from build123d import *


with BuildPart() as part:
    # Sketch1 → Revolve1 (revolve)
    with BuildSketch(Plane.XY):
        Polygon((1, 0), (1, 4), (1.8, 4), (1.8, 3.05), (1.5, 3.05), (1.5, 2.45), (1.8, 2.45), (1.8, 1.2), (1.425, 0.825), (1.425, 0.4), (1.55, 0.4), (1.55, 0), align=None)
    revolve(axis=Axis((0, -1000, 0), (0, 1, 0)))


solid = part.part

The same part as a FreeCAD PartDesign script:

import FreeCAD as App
import Part
import Sketcher

V = App.Vector
Q = App.Units.Quantity


def add_polygon(sketch, points):
    """Adds a closed chain of lines whose ends are joined by coincident constraints."""
    first, n = sketch.GeometryCount, len(points)
    for a, b in zip(points, points[1:] + points[:1]):
        sketch.addGeometry(Part.LineSegment(App.Vector(*a, 0), App.Vector(*b, 0)), False)
    for i in range(n):
        sketch.addConstraint(Sketcher.Constraint("Coincident", first + i, 2, first + (i + 1) % n, 1))

doc = App.newDocument("Part")
body = doc.addObject("PartDesign::Body", "Body")

# Sketch on XY plane
sketch1 = body.newObject("Sketcher::SketchObject", "Sketch")
sketch1.AttachmentSupport = (doc.getObject("XY_Plane"), [""])
sketch1.MapMode = "FlatFace"
add_polygon(sketch1, [(1, 4), (1, 0), (1.55, 0), (1.55, 0.4), (1.43, 0.4), (1.43, 0.82), (1.8, 1.2), (1.8, 2.45), (1.5, 2.45), (1.5, 3.05), (1.8, 3.05), (1.8, 4)])  # lines 0-11
sketch1.addConstraint([
    Sketcher.Constraint("Vertical", 0),
    Sketcher.Constraint("Horizontal", 1),
    Sketcher.Constraint("Vertical", 2),
    Sketcher.Constraint("Horizontal", 3),
    Sketcher.Constraint("Vertical", 4),
    Sketcher.Constraint("Vertical", 6),
    Sketcher.Constraint("Horizontal", 7),
    Sketcher.Constraint("Vertical", 8),
    Sketcher.Constraint("Horizontal", 9),
    Sketcher.Constraint("Vertical", 10),
    Sketcher.Constraint("Horizontal", 11),
    Sketcher.Constraint("PointOnObject", 0, 2, -1),
    Sketcher.Constraint("Vertical", 6, 2, 9, 2),
    Sketcher.Constraint("DistanceY", 0, 2, 0, 1, Q("4 mm")),
    Sketcher.Constraint("Angle", 5, Q("45 deg")),
    Sketcher.Constraint("DistanceX", 7, 2, 7, 1, Q("0.3 mm")),
    Sketcher.Constraint("DistanceX", 11, 2, 11, 1, Q("0.8 mm")),
    Sketcher.Constraint("DistanceY", 2, 1, 2, 2, Q("0.4 mm")),
    Sketcher.Constraint("DistanceY", 8, 1, 8, 2, Q("0.6 mm")),
    Sketcher.Constraint("DistanceX", -1, 1, 0, 2, Q("1 mm")),
    Sketcher.Constraint("DistanceX", 1, 1, 1, 2, Q("0.55 mm")),
    Sketcher.Constraint("DistanceY", 6, 1, 6, 2, Q("1.25 mm")),
    Sketcher.Constraint("DistanceY", 10, 1, 10, 2, Q("0.95 mm")),
    Sketcher.Constraint("DistanceX", 3, 2, 3, 1, Q("0.125 mm")),
])
revolution = body.newObject("PartDesign::Revolution", "Revolution")
revolution.Profile = sketch1
revolution.ReferenceAxis = (sketch1, ["V_Axis"])
revolution.Angle = 360

doc.recompute()
